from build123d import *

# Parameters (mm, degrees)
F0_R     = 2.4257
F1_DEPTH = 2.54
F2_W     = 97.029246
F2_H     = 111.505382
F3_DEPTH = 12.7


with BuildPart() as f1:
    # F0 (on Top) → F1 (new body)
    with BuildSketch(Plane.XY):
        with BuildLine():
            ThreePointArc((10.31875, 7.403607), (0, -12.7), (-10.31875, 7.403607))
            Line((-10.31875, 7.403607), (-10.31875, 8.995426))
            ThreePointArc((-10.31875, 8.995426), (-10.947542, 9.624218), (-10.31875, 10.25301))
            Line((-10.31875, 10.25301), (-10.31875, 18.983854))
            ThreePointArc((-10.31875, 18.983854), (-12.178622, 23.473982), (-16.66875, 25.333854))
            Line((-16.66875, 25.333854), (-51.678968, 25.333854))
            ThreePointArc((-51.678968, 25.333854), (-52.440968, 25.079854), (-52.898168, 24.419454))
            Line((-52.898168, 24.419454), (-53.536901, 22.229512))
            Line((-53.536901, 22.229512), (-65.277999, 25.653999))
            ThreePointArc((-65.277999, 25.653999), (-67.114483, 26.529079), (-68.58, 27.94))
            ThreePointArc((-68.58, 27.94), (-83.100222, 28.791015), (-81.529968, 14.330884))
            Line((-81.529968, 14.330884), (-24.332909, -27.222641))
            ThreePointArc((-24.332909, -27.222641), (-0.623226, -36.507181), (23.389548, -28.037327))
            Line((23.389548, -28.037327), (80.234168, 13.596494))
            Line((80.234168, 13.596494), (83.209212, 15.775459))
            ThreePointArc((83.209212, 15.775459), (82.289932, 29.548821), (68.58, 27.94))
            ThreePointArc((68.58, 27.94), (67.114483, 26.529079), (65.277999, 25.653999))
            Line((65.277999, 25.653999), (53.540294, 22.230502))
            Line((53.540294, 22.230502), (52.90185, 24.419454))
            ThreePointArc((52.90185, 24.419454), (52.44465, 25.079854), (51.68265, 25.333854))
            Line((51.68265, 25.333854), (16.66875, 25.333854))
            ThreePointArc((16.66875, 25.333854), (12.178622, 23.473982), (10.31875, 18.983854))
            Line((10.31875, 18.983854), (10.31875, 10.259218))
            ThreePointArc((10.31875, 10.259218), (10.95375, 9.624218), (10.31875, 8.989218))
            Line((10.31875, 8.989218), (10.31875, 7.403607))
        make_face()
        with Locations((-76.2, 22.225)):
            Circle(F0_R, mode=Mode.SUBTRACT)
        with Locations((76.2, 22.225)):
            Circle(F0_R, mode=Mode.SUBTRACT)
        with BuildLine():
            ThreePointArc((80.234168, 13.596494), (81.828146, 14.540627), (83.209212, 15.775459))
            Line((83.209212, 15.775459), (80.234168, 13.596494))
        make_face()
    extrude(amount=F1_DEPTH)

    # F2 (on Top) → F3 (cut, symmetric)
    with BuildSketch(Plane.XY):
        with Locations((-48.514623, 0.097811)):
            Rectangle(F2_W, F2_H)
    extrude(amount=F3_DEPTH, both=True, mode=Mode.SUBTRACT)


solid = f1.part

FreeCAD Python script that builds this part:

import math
import FreeCAD as App
import Part
import Sketcher
from FreeCAD import Vector
Q = App.Units.Quantity

doc = App.newDocument("Part")
body = doc.addObject("PartDesign::Body", "Body")

sketch1 = doc.addObject("Sketcher::SketchObject", "Sketch")
body.addObject(sketch1)
sketch1.AttachmentSupport = (doc.XY_Plane, [""])
sketch1.MapMode = "FlatFace"
sketch1.addGeometry(Part.ArcOfCircle(Part.Circle(Vector(0, 0, 0), Vector(0, 0, 1), 12.7), math.radians(144.340913), math.radians(395.659087)), False)
sketch1.addGeometry(Part.LineSegment(Vector(-10.31875, 7.403607, 0), Vector(-10.31875, 8.995426, 0)), False)
sketch1.addGeometry(Part.ArcOfCircle(Part.Circle(Vector(-10.31875, 9.624218, 0), Vector(0, 0, 1), 0.628792), math.radians(90), math.radians(270)), False)
sketch1.addGeometry(Part.LineSegment(Vector(-10.31875, 10.25301, 0), Vector(-10.31875, 18.983854, 0)), False)
sketch1.addGeometry(Part.ArcOfCircle(Part.Circle(Vector(-16.66875, 18.983854, 0), Vector(0, 0, 1), 6.35), math.radians(0.000002), math.radians(89.999998)), False)
sketch1.addGeometry(Part.LineSegment(Vector(-16.66875, 25.333854, 0), Vector(-51.678968, 25.333854, 0)), False)
sketch1.addGeometry(Part.ArcOfCircle(Part.Circle(Vector(-51.678968, 24.063854, 0), Vector(0, 0, 1), 1.27), math.radians(90), math.radians(163.739795)), False)
sketch1.addGeometry(Part.LineSegment(Vector(-52.898168, 24.419454, 0), Vector(-53.536901, 22.229512, 0)), False)
sketch1.addGeometry(Part.LineSegment(Vector(-53.536901, 22.229512, 0), Vector(-65.277999, 25.653999, 0)), False)
sketch1.addGeometry(Part.ArcOfCircle(Part.Circle(Vector(-63.499998, 31.75, 0), Vector(0, 0, 1), 6.350002), math.radians(-143.130108), math.radians(-106.260207)), False)
sketch1.addGeometry(Part.ArcOfCircle(Part.Circle(Vector(-76.2, 22.225, 0), Vector(0, 0, 1), 9.525), math.radians(36.8699), math.radians(235.97347)), False)
sketch1.addGeometry(Part.LineSegment(Vector(-81.529968, 14.330884, 0), Vector(-24.332909, -27.222641, 0)), False)
sketch1.addGeometry(Part.ArcOfCircle(Part.Circle(Vector(0, -0.000001, 0), Vector(0, 0, 1), 36.512499), math.radians(-131.791882), math.radians(-50.164159)), False)
sketch1.addGeometry(Part.LineSegment(Vector(23.389548, -28.037327, 0), Vector(80.234168, 13.596494, 0)), False)
sketch1.addGeometry(Part.ArcOfCircle(Part.Circle(Vector(76.199978, 22.225031, 0), Vector(0, 0, 1), 9.525038), math.radians(-64.94201), math.radians(-42.618823)), False)
sketch1.addGeometry(Part.ArcOfCircle(Part.Circle(Vector(76.2, 22.225, 0), Vector(0, 0, 1), 9.525), math.radians(-42.618774), math.radians(143.130101)), False)
sketch1.addGeometry(Part.ArcOfCircle(Part.Circle(Vector(63.499998, 31.75, 0), Vector(0, 0, 1), 6.350002), math.radians(-73.739793), math.radians(-36.869892)), False)
sketch1.addGeometry(Part.LineSegment(Vector(65.277999, 25.653999, 0), Vector(53.540294, 22.230502, 0)), False)
sketch1.addGeometry(Part.LineSegment(Vector(53.540294, 22.230502, 0), Vector(52.90185, 24.419454, 0)), False)
sketch1.addGeometry(Part.ArcOfCircle(Part.Circle(Vector(51.68265, 24.063854, 0), Vector(0, 0, 1), 1.27), math.radians(16.260205), math.radians(90)), False)
sketch1.addGeometry(Part.LineSegment(Vector(51.68265, 25.333854, 0), Vector(16.66875, 25.333854, 0)), False)
sketch1.addGeometry(Part.ArcOfCircle(Part.Circle(Vector(16.66875, 18.983854, 0), Vector(0, 0, 1), 6.35), math.radians(90.000002), math.radians(179.999998)), False)
sketch1.addGeometry(Part.LineSegment(Vector(10.31875, 18.983854, 0), Vector(10.31875, 10.259218, 0)), False)
sketch1.addGeometry(Part.ArcOfCircle(Part.Circle(Vector(10.31875, 9.624218, 0), Vector(0, 0, 1), 0.635), math.radians(-90), math.radians(90)), False)
sketch1.addGeometry(Part.LineSegment(Vector(10.31875, 8.989218, 0), Vector(10.31875, 7.403607, 0)), False)
sketch1.addGeometry(Part.Circle(Vector(-76.2, 22.225, 0), Vector(0, 0, 1), 2.4257), False)
sketch1.addGeometry(Part.Circle(Vector(76.2, 22.225, 0), Vector(0, 0, 1), 2.4257), False)
sketch1.addConstraint(Sketcher.Constraint("Coincident", 0, 1, 1, 1))
sketch1.addConstraint(Sketcher.Constraint("Coincident", 1, 2, 2, 2))
sketch1.addConstraint(Sketcher.Constraint("Coincident", 2, 1, 3, 1))
sketch1.addConstraint(Sketcher.Constraint("Coincident", 3, 2, 4, 1))
sketch1.addConstraint(Sketcher.Constraint("Coincident", 4, 2, 5, 1))
sketch1.addConstraint(Sketcher.Constraint("Coincident", 5, 2, 6, 1))
sketch1.addConstraint(Sketcher.Constraint("Coincident", 6, 2, 7, 1))
sketch1.addConstraint(Sketcher.Constraint("Coincident", 7, 2, 8, 1))
sketch1.addConstraint(Sketcher.Constraint("Coincident", 8, 2, 9, 2))
sketch1.addConstraint(Sketcher.Constraint("Coincident", 9, 1, 10, 1))
sketch1.addConstraint(Sketcher.Constraint("Coincident", 10, 2, 11, 1))
sketch1.addConstraint(Sketcher.Constraint("Coincident", 11, 2, 12, 1))
sketch1.addConstraint(Sketcher.Constraint("Coincident", 12, 2, 13, 1))
sketch1.addConstraint(Sketcher.Constraint("Coincident", 13, 2, 14, 1))
sketch1.addConstraint(Sketcher.Constraint("Coincident", 14, 2, 15, 1))
sketch1.addConstraint(Sketcher.Constraint("Coincident", 15, 2, 16, 2))
sketch1.addConstraint(Sketcher.Constraint("Coincident", 16, 1, 17, 1))
sketch1.addConstraint(Sketcher.Constraint("Coincident", 17, 2, 18, 1))
sketch1.addConstraint(Sketcher.Constraint("Coincident", 18, 2, 19, 1))
sketch1.addConstraint(Sketcher.Constraint("Coincident", 19, 2, 20, 1))
sketch1.addConstraint(Sketcher.Constraint("Coincident", 20, 2, 21, 1))
sketch1.addConstraint(Sketcher.Constraint("Coincident", 21, 2, 22, 1))
sketch1.addConstraint(Sketcher.Constraint("Coincident", 22, 2, 23, 2))
sketch1.addConstraint(Sketcher.Constraint("Coincident", 23, 1, 24, 1))
sketch1.addConstraint(Sketcher.Constraint("Coincident", 24, 2, 0, 2))
sketch1.addConstraint(Sketcher.Constraint("Vertical", 1))
sketch1.addConstraint(Sketcher.Constraint("Vertical", 3))
sketch1.addConstraint(Sketcher.Constraint("Horizontal", 5))
sketch1.addConstraint(Sketcher.Constraint("Horizontal", 20))
sketch1.addConstraint(Sketcher.Constraint("Vertical", 22))
sketch1.addConstraint(Sketcher.Constraint("Vertical", 24))
sketch1.addConstraint(Sketcher.Constraint("Coincident", 0, 3, -1, 1))
sketch1.addConstraint(Sketcher.Constraint("Coincident", 12, 3, -1, 1))
sketch1.addConstraint(Sketcher.Constraint("Coincident", 25, 3, 10, 3))
sketch1.addConstraint(Sketcher.Constraint("Coincident", 26, 3, 15, 3))
sketch1.addConstraint(Sketcher.Constraint("Radius", 0, Q("0.5 in")))
sketch1.addConstraint(Sketcher.Constraint("Radius", 4, Q("0.25 in")))
sketch1.addConstraint(Sketcher.Constraint("Radius", 6, Q("0.05 in")))
sketch1.addConstraint(Sketcher.Constraint("Radius", 9, Q("0.2500001 in")))
sketch1.addConstraint(Sketcher.Constraint("Radius", 16, Q("0.2500001 in")))
sketch1.addConstraint(Sketcher.Constraint("Radius", 19, Q("0.05 in")))
sketch1.addConstraint(Sketcher.Constraint("Radius", 21, Q("0.25 in")))
sketch1.addConstraint(Sketcher.Constraint("Diameter", 25, Q("0.191 in")))
sketch1.addConstraint(Sketcher.Constraint("Diameter", 26, Q("0.191 in")))
sketch1.addConstraint(Sketcher.Constraint("DistanceX", 10, 3, -1, 1, Q("3 in")))
sketch1.addConstraint(Sketcher.Constraint("DistanceX", -1, 1, 15, 3, Q("3 in")))
sketch1.addConstraint(Sketcher.Constraint("Radius", 10, Q("0.375 in")))
sketch1.addConstraint(Sketcher.Constraint("Radius", 12, Q("1.4375 in")))
sketch1.addConstraint(Sketcher.Constraint("Radius", 15, Q("0.375 in")))
sketch1.addConstraint(Sketcher.Constraint("Radius", 23, Q("0.025 in")))
sketch1.addConstraint(Sketcher.Constraint("DistanceX", 9, 3, -1, 1, Q("2.4999999 in")))
sketch1.addConstraint(Sketcher.Constraint("DistanceX", -1, 1, 16, 3, Q("2.4999999 in")))
sketch1.addConstraint(Sketcher.Constraint("DistanceX", 9, 1, -1, 1, Q("2.7 in")))
sketch1.addConstraint(Sketcher.Constraint("DistanceY", -1, 1, 9, 1, Q("1.1 in")))
sketch1.addConstraint(Sketcher.Constraint("DistanceX", -1, 1, 15, 2, Q("2.7 in")))
sketch1.addConstraint(Sketcher.Constraint("DistanceY", -1, 1, 15, 2, Q("1.1 in")))
sketch1.addConstraint(Sketcher.Constraint("DistanceX", 8, 2, -1, 1, Q("2.57 in")))
sketch1.addConstraint(Sketcher.Constraint("DistanceX", -1, 1, 16, 1, Q("2.57 in")))
sketch1.addConstraint(Sketcher.Constraint("DistanceX", 4, 3, 2, 3, Q("0.25 in")))
sketch1.addConstraint(Sketcher.Constraint("DistanceX", 23, 3, 21, 3, Q("0.25 in")))
sketch1.addConstraint(Sketcher.Constraint("DistanceX", 4, 3, 0, 1, Q("0.25 in")))
sketch1.addConstraint(Sketcher.Constraint("DistanceX", 4, 2, 3, 2, Q("0.25 in")))
sketch1.addConstraint(Sketcher.Constraint("DistanceY", 3, 2, 4, 2, Q("0.25 in")))
sketch1.addConstraint(Sketcher.Constraint("DistanceX", 23, 3, 20, 2, Q("0.25 in")))
sketch1.addConstraint(Sketcher.Constraint("DistanceY", 3, 2, 20, 2, Q("0.25 in")))
sketch1.addConstraint(Sketcher.Constraint("DistanceY", 21, 2, 20, 2, Q("0.25 in")))
sketch1.addConstraint(Sketcher.Constraint("DistanceX", 23, 1, 21, 3, Q("0.25 in")))
sketch1.addConstraint(Sketcher.Constraint("DistanceX", 20, 2, 20, 1, Q("1.3785 in")))
sketch1.addConstraint(Sketcher.Constraint("DistanceX", 2, 3, -1, 1, Q("0.40625 in")))
sketch1.addConstraint(Sketcher.Constraint("DistanceX", -1, 1, 21, 3, Q("0.65625 in")))
sketch1.addConstraint(Sketcher.Constraint("DistanceX", 6, 2, 6, 3, Q("0.048 in")))
sketch1.addConstraint(Sketcher.Constraint("DistanceX", 6, 2, 5, 2, Q("0.048 in")))
sketch1.addConstraint(Sketcher.Constraint("DistanceX", 19, 3, 18, 2, Q("0.048 in")))
sketch1.addConstraint(Sketcher.Constraint("DistanceX", 19, 2, 18, 2, Q("0.048 in")))
sketch1.addConstraint(Sketcher.Constraint("Radius", 2, Q("0.628792 mm")))
sketch1.addConstraint(Sketcher.Constraint("Radius", 14, Q("9.525038 mm")))
sketch1.addConstraint(Sketcher.Constraint("DistanceY", 1, 1, 1, 2, Q("1.591819 mm")))
sketch1.addConstraint(Sketcher.Constraint("DistanceY", 24, 2, 24, 1, Q("1.585611 mm")))
sketch1.addConstraint(Sketcher.Constraint("DistanceX", 7, 2, -1, 1, Q("53.536901 mm")))
sketch1.addConstraint(Sketcher.Constraint("DistanceX", 23, 3, 12, 2, Q("13.070798 mm")))
sketch1.addConstraint(Sketcher.Constraint("DistanceY", 17, 2, 16, 3, Q("9.519498 mm")))
sketch1.addConstraint(Sketcher.Constraint("Distance", 7, Q("2.28119 mm")))
sketch1.addConstraint(Sketcher.Constraint("Distance", 8, Q("12.23031 mm")))
sketch1.addConstraint(Sketcher.Constraint("Distance", 11, Q("70.697942 mm")))
sketch1.addConstraint(Sketcher.Constraint("Distance", 18, Q("2.280158 mm")))
sketch1.addConstraint(Sketcher.Constraint("DistanceX", 5, 2, 5, 1, Q("35.010218 mm")))
sketch1.addConstraint(Sketcher.Constraint("DistanceY", -1, 1, 14, 3, Q("22.225031 mm")))
sketch1.addConstraint(Sketcher.Constraint("DistanceX", 10, 2, -1, 1, Q("81.529968 mm")))
sketch1.addConstraint(Sketcher.Constraint("DistanceX", -1, 1, 14, 2, Q("83.209212 mm")))
sketch1.addConstraint(Sketcher.Constraint("DistanceX", 14, 3, 13, 2, Q("4.03419 mm")))
pad1 = doc.addObject("PartDesign::Pad", "Pad")
body.addObject(pad1)
pad1.Profile = sketch1
pad1.Length = Q("0.1 in")

sketch2 = doc.addObject("Sketcher::SketchObject", "Sketch001")
body.addObject(sketch2)
sketch2.AttachmentSupport = (doc.XY_Plane, [""])
sketch2.MapMode = "FlatFace"
sketch2.addGeometry(Part.LineSegment(Vector(-97, 56, 0), Vector(-97, -56, 0)), False)
sketch2.addGeometry(Part.LineSegment(Vector(-97, -56, 0), Vector(0, -56, 0)), False)
sketch2.addGeometry(Part.LineSegment(Vector(0, -56, 0), Vector(0, 56, 0)), False)
sketch2.addGeometry(Part.LineSegment(Vector(0, 56, 0), Vector(-97, 56, 0)), False)
sketch2.addConstraint(Sketcher.Constraint("Coincident", 0, 2, 1, 1))
sketch2.addConstraint(Sketcher.Constraint("Coincident", 1, 2, 2, 1))
sketch2.addConstraint(Sketcher.Constraint("Coincident", 2, 2, 3, 1))
sketch2.addConstraint(Sketcher.Constraint("Coincident", 3, 2, 0, 1))
sketch2.addConstraint(Sketcher.Constraint("Vertical", 0))
sketch2.addConstraint(Sketcher.Constraint("Horizontal", 1))
sketch2.addConstraint(Sketcher.Constraint("Vertical", 2))
sketch2.addConstraint(Sketcher.Constraint("Horizontal", 3))
sketch2.addConstraint(Sketcher.Constraint("PointOnObject", 1, 2, -2))
sketch2.addConstraint(Sketcher.Constraint("DistanceY", 0, 2, 0, 1, Q("111.505382 mm")))
sketch2.addConstraint(Sketcher.Constraint("DistanceX", 1, 1, 1, 2, Q("97.029246 mm")))
sketch2.addConstraint(Sketcher.Constraint("DistanceY", 0, 2, -1, 1, Q("55.65488 mm")))
pocket1 = doc.addObject("PartDesign::Pocket", "Pocket")
body.addObject(pocket1)
pocket1.Profile = sketch2
pocket1.Length = Q("1 in")
pocket1.Midplane = True

doc.recompute()
